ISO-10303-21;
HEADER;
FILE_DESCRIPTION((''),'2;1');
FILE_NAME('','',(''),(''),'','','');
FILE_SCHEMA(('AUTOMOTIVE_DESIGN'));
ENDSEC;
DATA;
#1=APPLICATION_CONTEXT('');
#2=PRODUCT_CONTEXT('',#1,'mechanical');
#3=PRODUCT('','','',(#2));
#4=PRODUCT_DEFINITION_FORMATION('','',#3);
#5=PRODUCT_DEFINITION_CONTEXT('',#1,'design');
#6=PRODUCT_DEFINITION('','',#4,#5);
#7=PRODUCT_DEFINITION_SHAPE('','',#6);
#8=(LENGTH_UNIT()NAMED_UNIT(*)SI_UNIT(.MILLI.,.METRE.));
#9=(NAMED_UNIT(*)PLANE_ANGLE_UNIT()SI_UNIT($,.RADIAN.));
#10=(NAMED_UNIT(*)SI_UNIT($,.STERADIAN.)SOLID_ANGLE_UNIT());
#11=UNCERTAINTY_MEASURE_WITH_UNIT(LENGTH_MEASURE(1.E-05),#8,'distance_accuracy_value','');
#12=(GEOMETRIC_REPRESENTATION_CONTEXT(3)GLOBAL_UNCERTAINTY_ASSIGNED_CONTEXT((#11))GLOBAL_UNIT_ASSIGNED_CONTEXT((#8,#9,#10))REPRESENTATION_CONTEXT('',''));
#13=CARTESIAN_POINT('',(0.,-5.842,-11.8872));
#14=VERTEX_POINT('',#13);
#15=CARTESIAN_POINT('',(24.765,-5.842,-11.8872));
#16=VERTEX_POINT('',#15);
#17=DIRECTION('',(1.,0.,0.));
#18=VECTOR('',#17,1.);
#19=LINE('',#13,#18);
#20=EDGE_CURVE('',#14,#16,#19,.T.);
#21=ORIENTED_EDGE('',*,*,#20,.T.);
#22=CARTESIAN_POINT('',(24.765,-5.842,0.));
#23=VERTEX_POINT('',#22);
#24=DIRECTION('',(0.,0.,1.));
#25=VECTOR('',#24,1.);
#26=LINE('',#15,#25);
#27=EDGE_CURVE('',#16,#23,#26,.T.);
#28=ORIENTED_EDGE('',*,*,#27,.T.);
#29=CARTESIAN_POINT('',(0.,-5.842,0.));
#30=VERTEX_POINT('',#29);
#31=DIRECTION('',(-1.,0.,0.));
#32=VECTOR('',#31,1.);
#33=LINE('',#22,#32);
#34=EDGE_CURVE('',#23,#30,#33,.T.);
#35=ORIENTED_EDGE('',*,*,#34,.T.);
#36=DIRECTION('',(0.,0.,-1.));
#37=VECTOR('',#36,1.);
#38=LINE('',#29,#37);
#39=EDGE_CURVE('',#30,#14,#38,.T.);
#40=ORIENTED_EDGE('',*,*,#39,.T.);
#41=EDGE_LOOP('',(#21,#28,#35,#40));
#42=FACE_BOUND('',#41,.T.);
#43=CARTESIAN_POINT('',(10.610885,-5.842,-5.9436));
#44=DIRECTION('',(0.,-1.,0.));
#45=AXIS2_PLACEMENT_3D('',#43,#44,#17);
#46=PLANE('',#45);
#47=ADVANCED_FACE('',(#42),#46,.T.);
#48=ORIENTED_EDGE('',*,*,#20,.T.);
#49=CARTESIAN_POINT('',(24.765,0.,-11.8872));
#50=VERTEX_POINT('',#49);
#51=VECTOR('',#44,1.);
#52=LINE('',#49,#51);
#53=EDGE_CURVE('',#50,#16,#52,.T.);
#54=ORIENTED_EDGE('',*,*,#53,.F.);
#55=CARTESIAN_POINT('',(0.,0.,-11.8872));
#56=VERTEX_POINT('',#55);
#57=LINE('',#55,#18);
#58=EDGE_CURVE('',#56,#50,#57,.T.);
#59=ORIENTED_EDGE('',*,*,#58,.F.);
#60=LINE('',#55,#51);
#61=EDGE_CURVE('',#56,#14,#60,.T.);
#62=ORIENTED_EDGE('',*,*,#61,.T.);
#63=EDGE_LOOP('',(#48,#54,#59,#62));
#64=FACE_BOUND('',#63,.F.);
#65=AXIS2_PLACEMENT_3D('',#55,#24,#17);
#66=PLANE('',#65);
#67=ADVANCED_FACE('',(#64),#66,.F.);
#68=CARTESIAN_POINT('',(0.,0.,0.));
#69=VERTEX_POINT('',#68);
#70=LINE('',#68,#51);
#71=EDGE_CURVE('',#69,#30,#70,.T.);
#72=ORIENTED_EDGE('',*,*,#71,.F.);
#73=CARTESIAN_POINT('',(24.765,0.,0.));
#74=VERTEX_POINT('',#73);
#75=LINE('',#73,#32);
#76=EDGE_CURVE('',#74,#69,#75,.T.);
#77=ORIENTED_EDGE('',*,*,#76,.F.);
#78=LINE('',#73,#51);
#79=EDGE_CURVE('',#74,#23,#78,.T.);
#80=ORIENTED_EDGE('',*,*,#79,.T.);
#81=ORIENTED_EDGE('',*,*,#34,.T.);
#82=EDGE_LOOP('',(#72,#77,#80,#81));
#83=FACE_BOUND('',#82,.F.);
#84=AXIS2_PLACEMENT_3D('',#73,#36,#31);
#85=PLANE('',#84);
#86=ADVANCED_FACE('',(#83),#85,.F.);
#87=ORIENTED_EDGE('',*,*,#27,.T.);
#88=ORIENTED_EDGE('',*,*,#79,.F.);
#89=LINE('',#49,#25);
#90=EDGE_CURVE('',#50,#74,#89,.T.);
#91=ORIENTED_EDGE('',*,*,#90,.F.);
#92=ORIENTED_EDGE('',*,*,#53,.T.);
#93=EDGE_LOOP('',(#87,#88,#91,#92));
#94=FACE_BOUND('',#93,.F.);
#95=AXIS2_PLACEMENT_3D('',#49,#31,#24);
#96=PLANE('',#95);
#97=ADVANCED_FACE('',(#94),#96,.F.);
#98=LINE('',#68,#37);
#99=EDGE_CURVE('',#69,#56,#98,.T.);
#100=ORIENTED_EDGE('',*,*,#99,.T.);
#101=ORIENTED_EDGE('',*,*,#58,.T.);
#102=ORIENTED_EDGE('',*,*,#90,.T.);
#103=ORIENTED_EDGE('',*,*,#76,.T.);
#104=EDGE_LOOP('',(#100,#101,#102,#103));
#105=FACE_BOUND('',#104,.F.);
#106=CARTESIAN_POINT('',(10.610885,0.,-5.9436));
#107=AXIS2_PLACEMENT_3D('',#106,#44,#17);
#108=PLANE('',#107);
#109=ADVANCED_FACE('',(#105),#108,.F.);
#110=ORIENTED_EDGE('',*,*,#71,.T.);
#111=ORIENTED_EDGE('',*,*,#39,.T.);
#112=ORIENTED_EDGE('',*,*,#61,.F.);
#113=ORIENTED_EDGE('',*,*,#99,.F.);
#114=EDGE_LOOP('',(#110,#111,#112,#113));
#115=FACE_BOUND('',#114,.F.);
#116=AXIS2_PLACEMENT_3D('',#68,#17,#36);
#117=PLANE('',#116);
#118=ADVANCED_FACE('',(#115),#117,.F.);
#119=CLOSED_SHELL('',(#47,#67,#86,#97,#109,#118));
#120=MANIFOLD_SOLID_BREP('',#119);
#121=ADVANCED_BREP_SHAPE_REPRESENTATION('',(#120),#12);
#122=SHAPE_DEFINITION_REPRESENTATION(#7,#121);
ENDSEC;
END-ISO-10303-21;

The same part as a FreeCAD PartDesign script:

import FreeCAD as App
import Part
import Sketcher

V = App.Vector
Q = App.Units.Quantity


def add_polygon(sketch, points):
    """Adds a closed chain of lines whose ends are joined by coincident constraints."""
    first, n = sketch.GeometryCount, len(points)
    for a, b in zip(points, points[1:] + points[:1]):
        sketch.addGeometry(Part.LineSegment(App.Vector(*a, 0), App.Vector(*b, 0)), False)
    for i in range(n):
        sketch.addConstraint(Sketcher.Constraint("Coincident", first + i, 2, first + (i + 1) % n, 1))

doc = App.newDocument("Part")
body = doc.addObject("PartDesign::Body", "Body")

# Sketch on XZ plane
sketch1 = body.newObject("Sketcher::SketchObject", "Sketch")
sketch1.AttachmentSupport = (doc.getObject("XZ_Plane"), [""])
sketch1.MapMode = "FlatFace"
add_polygon(sketch1, [(0, 0), (0, -12), (25, -12), (25, 0)])  # lines 0-3
sketch1.addConstraint([
    Sketcher.Constraint("Vertical", 0),
    Sketcher.Constraint("Horizontal", 1),
    Sketcher.Constraint("Vertical", 2),
    Sketcher.Constraint("Horizontal", 3),
    Sketcher.Constraint("Coincident", 3, 2, -1, 1),
    Sketcher.Constraint("DistanceX", 1, 1, 1, 2, Q("0.975 in")),
    Sketcher.Constraint("DistanceY", 0, 2, 0, 1, Q("0.468 in")),
])
pad1 = body.newObject("PartDesign::Pad", "Pad")
pad1.Profile = sketch1
pad1.Length = Q("0.23 in")

doc.recompute()
